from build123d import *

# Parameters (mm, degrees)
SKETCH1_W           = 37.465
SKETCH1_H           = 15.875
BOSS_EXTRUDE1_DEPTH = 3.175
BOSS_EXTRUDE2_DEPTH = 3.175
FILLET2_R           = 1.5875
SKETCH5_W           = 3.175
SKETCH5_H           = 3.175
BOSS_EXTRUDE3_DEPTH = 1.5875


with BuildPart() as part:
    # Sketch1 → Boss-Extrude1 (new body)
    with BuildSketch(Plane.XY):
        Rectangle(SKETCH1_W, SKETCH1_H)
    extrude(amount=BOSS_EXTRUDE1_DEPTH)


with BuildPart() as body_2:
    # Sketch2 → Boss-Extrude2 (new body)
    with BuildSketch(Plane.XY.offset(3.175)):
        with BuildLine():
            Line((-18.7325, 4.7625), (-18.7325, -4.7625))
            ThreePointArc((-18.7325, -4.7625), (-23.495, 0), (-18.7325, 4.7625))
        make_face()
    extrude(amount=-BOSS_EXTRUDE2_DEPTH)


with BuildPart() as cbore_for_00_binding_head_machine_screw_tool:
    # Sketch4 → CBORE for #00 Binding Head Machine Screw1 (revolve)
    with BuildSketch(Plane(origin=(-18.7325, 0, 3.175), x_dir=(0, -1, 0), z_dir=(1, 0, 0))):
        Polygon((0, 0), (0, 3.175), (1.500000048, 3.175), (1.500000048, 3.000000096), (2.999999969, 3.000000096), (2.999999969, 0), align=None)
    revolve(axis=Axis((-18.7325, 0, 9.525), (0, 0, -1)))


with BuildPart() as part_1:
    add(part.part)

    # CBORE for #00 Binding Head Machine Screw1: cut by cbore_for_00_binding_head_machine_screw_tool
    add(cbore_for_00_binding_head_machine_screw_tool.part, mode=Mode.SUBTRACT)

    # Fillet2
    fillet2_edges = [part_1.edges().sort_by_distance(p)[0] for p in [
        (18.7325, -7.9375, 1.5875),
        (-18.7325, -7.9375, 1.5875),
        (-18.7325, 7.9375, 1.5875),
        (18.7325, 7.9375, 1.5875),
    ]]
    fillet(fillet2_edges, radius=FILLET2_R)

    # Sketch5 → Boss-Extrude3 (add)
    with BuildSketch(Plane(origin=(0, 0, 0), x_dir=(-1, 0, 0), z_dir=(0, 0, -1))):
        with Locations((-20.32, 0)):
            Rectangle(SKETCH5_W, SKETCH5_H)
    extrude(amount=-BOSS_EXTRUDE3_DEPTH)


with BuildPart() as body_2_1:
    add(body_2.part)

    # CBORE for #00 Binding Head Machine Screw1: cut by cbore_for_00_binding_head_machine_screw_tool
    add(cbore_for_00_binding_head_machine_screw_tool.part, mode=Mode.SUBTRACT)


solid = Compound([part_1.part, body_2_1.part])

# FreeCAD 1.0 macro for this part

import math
import FreeCAD as App
import Part
import Sketcher
Q = App.Units.Quantity


def edges_at(feature, points):
    """Names of the edges that pass closest to the given points."""
    edges = feature.Shape.Edges
    near = lambda p: min(range(len(edges)), key=lambda i: edges[i].distToShape(Part.Vertex(*p))[0])
    return sorted({f"Edge{near(p) + 1}" for p in points})


def add_polygon(sketch, points):
    """Adds a closed chain of lines whose ends are joined by coincident constraints."""
    first, n = sketch.GeometryCount, len(points)
    for a, b in zip(points, points[1:] + points[:1]):
        sketch.addGeometry(Part.LineSegment(App.Vector(*a, 0), App.Vector(*b, 0)), False)
    for i in range(n):
        sketch.addConstraint(Sketcher.Constraint("Coincident", first + i, 2, first + (i + 1) % n, 1))

doc = App.newDocument("Part")
params = doc.addObject("Spreadsheet::Sheet", "Params")
for row, (alias, value) in enumerate([
    ("sketch1_width", "1.475 in"),
    ("sketch1_height", "0.625 in"),
    ("pad1_length", "0.125 in"),
    ("sketch2_radius", "0.1875 in"),
    ("pad2_length", "0.125 in"),
    ("sketch3_height", "0.125 in"),
    ("revolution_angle", "360 deg"),
    ("fillet_radius", "0.0625 in"),
    ("sketch4_width", "0.125 in"),
    ("pad3_length", "0.0625 in"),
], start=1):
    params.set(f"A{row}", alias)
    params.set(f"B{row}", "=" + value)
    params.setAlias(f"B{row}", alias)

body = doc.addObject("PartDesign::Body", "Body")

sketch1 = body.newObject("Sketcher::SketchObject", "Sketch")
sketch1.AttachmentSupport = (doc.getObject("XY_Plane"), [""])
sketch1.MapMode = "FlatFace"
add_polygon(sketch1, [(-19, 8), (-19, -8), (19, -8), (19, 8)])
sketch1.addConstraint([
    Sketcher.Constraint("Vertical", 0),
    Sketcher.Constraint("Horizontal", 1),
    Sketcher.Constraint("Vertical", 2),
    Sketcher.Constraint("Horizontal", 3),
    Sketcher.Constraint("Symmetric", 0, 2, 2, 2, -1, 1),
    Sketcher.Constraint("DistanceX", 1, 1, 1, 2, Q("1.475 in")),
    Sketcher.Constraint("DistanceY", 0, 2, 0, 1, Q("0.625 in")),
])
sketch1.setExpression("Constraints[9]", "Params.sketch1_width")
sketch1.setExpression("Constraints[10]", "Params.sketch1_height")
pad1 = body.newObject("PartDesign::Pad", "Pad")
pad1.Profile = sketch1
pad1.setExpression("Length", "Params.pad1_length")
body2 = doc.addObject("PartDesign::Body", "Body001")

sketch2 = body2.newObject("Sketcher::SketchObject", "Sketch001")
sketch2.AttachmentSupport = (doc.getObject("XY_Plane001"), [""])
sketch2.MapMode = "FlatFace"
sketch2.AttachmentOffset = App.Placement(App.Vector(0, 0, 0.125 * 25.4), App.Rotation())
sketch2.addGeometry([
    Part.LineSegment(App.Vector(-18.7, -4.8, 0), App.Vector(-18.7, 4.8, 0)),
    Part.ArcOfCircle(Part.Circle(App.Vector(-18.7, 0, 0), App.Vector(0, 0, 1), 4.8), math.radians(90), math.radians(270)),
], False)
sketch2.addConstraint([
    Sketcher.Constraint("Coincident", 0, 1, 1, 2),
    Sketcher.Constraint("Coincident", 1, 1, 0, 2),
    Sketcher.Constraint("Vertical", 0),
    Sketcher.Constraint("PointOnObject", 1, 3, -1),
    Sketcher.Constraint("Vertical", 1, 3, 0, 1),
    Sketcher.Constraint("Radius", 1, Q("0.1875 in")),
    Sketcher.Constraint("DistanceX", 1, 3, -1, 1, Q("0.7375 in")),
])
sketch2.setExpression("Constraints[5]", "Params.sketch2_radius")
pad2 = body2.newObject("PartDesign::Pad", "Pad001")
pad2.Profile = sketch2
pad2.setExpression("Length", "Params.pad2_length")
pad2.Reversed = True
body3 = doc.addObject("PartDesign::Body", "Body002")

sketch3 = body3.newObject("Sketcher::SketchObject", "Sketch002")
sketch3.AttachmentSupport = (doc.getObject("YZ_Plane002"), [""])
sketch3.MapMode = "FlatFace"
sketch3.AttachmentOffset = App.Placement(App.Vector(0, 0, -0.7375 * 25.4), App.Rotation())
add_polygon(sketch3, [(0, 0), (0, 3.17), (-3, 3.17), (-3, 0.17), (-1.5, 0.17), (-1.5, 0)])
sketch3.addConstraint([
    Sketcher.Constraint("Vertical", 0),
    Sketcher.Constraint("Horizontal", 1),
    Sketcher.Constraint("Vertical", 2),
    Sketcher.Constraint("Horizontal", 3),
    Sketcher.Constraint("Vertical", 4),
    Sketcher.Constraint("Horizontal", 5),
    Sketcher.Constraint("Coincident", 5, 2, -1, 1),
    Sketcher.Constraint("Equal", 3, 5),
    Sketcher.Constraint("Equal", 1, 2),
    Sketcher.Constraint("DistanceY", 0, 1, 0, 2, Q("0.125 in")),
    Sketcher.Constraint("DistanceX", 1, 2, 1, 1, 3.0),
])
sketch3.setExpression("Constraints[15]", "Params.sketch3_height")
revolution = body3.newObject("PartDesign::Revolution", "Revolution")
revolution.Profile = sketch3
revolution.ReferenceAxis = (sketch3, ["V_Axis"])
revolution.setExpression("Angle", "Params.revolution_angle")
doc.recompute()

body4 = doc.addObject("PartDesign::Body", "Body003")
body4.BaseFeature = body3
boolean = body.newObject("PartDesign::Boolean", "Boolean")
boolean.Type = "Cut"
boolean.addObjects([body4])
doc.recompute()

fillet = body.newObject("PartDesign::Fillet", "Fillet")
fillet.Base = (boolean, edges_at(boolean, [
    (18.733, -7.938, 1.587),
    (-18.733, -7.938, 1.587),
    (-18.733, 7.938, 1.587),
    (18.733, 7.938, 1.587),
]))
fillet.setExpression("Radius", "Params.fillet_radius")

sketch4 = body.newObject("Sketcher::SketchObject", "Sketch003")
sketch4.AttachmentSupport = (doc.getObject("XY_Plane"), [""])
sketch4.MapMode = "FlatFace"
add_polygon(sketch4, [(21.9, 1.6), (21.9, -1.6), (18.7, -1.6), (18.7, 1.6)])
sketch4.addConstraint([
    Sketcher.Constraint("Vertical", 0),
    Sketcher.Constraint("Horizontal", 1),
    Sketcher.Constraint("Vertical", 2),
    Sketcher.Constraint("Horizontal", 3),
    Sketcher.Constraint("Equal", 3, 0),
    Sketcher.Constraint("DistanceX", 1, 2, 1, 1, Q("0.125 in")),
    Sketcher.Constraint("DistanceY", 0, 2, -1, 1, Q("0.0625 in")),
    Sketcher.Constraint("DistanceX", -1, 1, 0, 2, Q("0.8625 in")),
])
sketch4.setExpression("Constraints[9]", "Params.sketch4_width")
pad3 = body.newObject("PartDesign::Pad", "Pad002")
pad3.Profile = sketch4
pad3.setExpression("Length", "Params.pad3_length")
doc.recompute()

boolean2 = body2.newObject("PartDesign::Boolean", "Boolean001")
boolean2.Type = "Cut"
boolean2.addObjects([body3])

doc.recompute()
